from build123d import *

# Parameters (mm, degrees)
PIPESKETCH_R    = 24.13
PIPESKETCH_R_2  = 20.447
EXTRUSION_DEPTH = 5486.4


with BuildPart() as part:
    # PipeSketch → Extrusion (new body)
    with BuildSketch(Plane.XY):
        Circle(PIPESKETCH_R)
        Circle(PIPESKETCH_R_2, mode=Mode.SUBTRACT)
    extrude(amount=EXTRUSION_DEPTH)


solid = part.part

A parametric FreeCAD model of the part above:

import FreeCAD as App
import Part
import Sketcher
Q = App.Units.Quantity

doc = App.newDocument("Part")
params = doc.addObject("Spreadsheet::Sheet", "Params")
for row, (alias, value) in enumerate([
    ("sketch1_diameter", "1.9 in"),
    ("sketch1_diameter2", "1.61 in"),
    ("pad1_length", "216 in"),
], start=1):
    params.set(f"A{row}", alias)
    params.set(f"B{row}", "=" + value)
    params.setAlias(f"B{row}", alias)

body = doc.addObject("PartDesign::Body", "Body")

sketch1 = doc.addObject("Sketcher::SketchObject", "Sketch")
body.addObject(sketch1)
sketch1.AttachmentSupport = (doc.XY_Plane, [""])
sketch1.MapMode = "FlatFace"
sketch1.addGeometry(Part.Circle(App.Vector(0, 0, 0), App.Vector(0, 0, 1), 24), False)
sketch1.addGeometry(Part.Circle(App.Vector(0, 0, 0), App.Vector(0, 0, 1), 20), False)
sketch1.addConstraint(Sketcher.Constraint("Coincident", 0, 3, -1, 1))
sketch1.addConstraint(Sketcher.Constraint("Coincident", 1, 3, -1, 1))
sketch1.addConstraint(Sketcher.Constraint("Diameter", 0, Q("1.9 in")))
sketch1.addConstraint(Sketcher.Constraint("Diameter", 1, Q("1.61 in")))
sketch1.setExpression("Constraints[2]", "Params.sketch1_diameter")
sketch1.setExpression("Constraints[3]", "Params.sketch1_diameter2")
pad1 = doc.addObject("PartDesign::Pad", "Pad")
body.addObject(pad1)
pad1.Profile = sketch1
pad1.setExpression("Length", "Params.pad1_length")

doc.recompute()
